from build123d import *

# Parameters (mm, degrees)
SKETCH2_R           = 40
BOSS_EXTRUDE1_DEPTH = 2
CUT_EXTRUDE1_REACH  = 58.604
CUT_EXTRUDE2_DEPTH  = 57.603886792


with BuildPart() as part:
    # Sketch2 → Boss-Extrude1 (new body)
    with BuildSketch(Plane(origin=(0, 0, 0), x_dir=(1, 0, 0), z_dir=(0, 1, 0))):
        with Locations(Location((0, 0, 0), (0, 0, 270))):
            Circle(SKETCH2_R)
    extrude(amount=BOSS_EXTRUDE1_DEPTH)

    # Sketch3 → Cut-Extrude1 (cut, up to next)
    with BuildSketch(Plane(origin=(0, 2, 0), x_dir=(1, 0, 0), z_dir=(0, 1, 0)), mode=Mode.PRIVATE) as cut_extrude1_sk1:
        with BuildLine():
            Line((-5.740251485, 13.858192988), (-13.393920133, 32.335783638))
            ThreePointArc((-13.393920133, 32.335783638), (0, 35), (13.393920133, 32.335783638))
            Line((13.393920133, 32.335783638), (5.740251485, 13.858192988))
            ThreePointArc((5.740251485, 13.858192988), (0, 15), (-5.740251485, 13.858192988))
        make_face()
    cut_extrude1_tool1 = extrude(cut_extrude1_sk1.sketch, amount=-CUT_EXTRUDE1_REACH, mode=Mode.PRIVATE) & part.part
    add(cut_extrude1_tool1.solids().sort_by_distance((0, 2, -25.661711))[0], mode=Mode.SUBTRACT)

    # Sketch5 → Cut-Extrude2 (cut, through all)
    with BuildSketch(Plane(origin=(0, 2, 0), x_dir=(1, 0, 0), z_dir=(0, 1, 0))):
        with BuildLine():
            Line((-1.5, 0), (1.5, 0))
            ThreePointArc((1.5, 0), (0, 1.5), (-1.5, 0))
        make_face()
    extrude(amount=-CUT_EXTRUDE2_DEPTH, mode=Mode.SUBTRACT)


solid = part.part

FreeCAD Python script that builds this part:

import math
import FreeCAD as App
import Part
import Sketcher
from FreeCAD import Vector
Q = App.Units.Quantity

doc = App.newDocument("Part")
body = doc.addObject("PartDesign::Body", "Body")

# Sketch on XZ plane
sketch1 = body.newObject("Sketcher::SketchObject", "Sketch")
sketch1.AttachmentSupport = (doc.getObject("XZ_Plane"), [""])
sketch1.MapMode = "FlatFace"
sketch1.addGeometry(Part.Circle(Vector(0, 0, 0), Vector(0, 0, 1), 40), False)
sketch1.addConstraint([
    Sketcher.Constraint("Coincident", 0, 3, -1, 1),
    Sketcher.Constraint("Diameter", 0, 80.0),
])
pad1 = body.newObject("PartDesign::Pad", "Pad")
pad1.Profile = sketch1
pad1.Length = 2
pad1.Reversed = True

# Sketch on XZ plane
sketch2 = body.newObject("Sketcher::SketchObject", "Sketch001")
sketch2.AttachmentSupport = (doc.getObject("XZ_Plane"), [""])
sketch2.MapMode = "FlatFace"
sketch2.AttachmentOffset = App.Placement(Vector(0, 0, -2), App.Rotation())
sketch2.addGeometry([
    Part.LineSegment(Vector(-13, -32, 0), Vector(-6, -14, 0)),
    Part.ArcOfCircle(Part.Circle(Vector(0, 0, 0), Vector(0, 0, 1), 15), math.radians(-112), math.radians(-68)),
    Part.LineSegment(Vector(6, -14, 0), Vector(13, -32, 0)),
    Part.ArcOfCircle(Part.Circle(Vector(0, 0, 0), Vector(0, 0, 1), 35), math.radians(-112), math.radians(-68)),
], False)
sketch2.addConstraint([
    Sketcher.Constraint("Coincident", 0, 2, 1, 1),
    Sketcher.Constraint("Coincident", 1, 2, 2, 1),
    Sketcher.Constraint("Coincident", 2, 2, 3, 2),
    Sketcher.Constraint("Coincident", 3, 1, 0, 1),
    Sketcher.Constraint("Coincident", 1, 3, -1, 1),
    Sketcher.Constraint("Coincident", 3, 3, -1, 1),
    Sketcher.Constraint("Horizontal", 0, 2, 1, 2),
    Sketcher.Constraint("Horizontal", 2, 2, 3, 1),
    Sketcher.Constraint("Radius", 1, 15.0),
    Sketcher.Constraint("Radius", 3, 35.0),
    Sketcher.Constraint("Angle", 0, Q("67.5 deg")),
    Sketcher.Constraint("DistanceX", 0, 2, -1, 1, 5.740251),
])
pocket1 = body.newObject("PartDesign::Pocket", "Pocket")
pocket1.Profile = sketch2
pocket1.Type = "UpToFirst"
pocket1.Reversed = True

# Sketch on XZ plane
sketch3 = body.newObject("Sketcher::SketchObject", "Sketch002")
sketch3.AttachmentSupport = (doc.getObject("XZ_Plane"), [""])
sketch3.MapMode = "FlatFace"
sketch3.AttachmentOffset = App.Placement(Vector(0, 0, -2), App.Rotation())
sketch3.addGeometry([
    Part.LineSegment(Vector(-1.5, 0, 0), Vector(1.5, 0, 0)),
    Part.ArcOfCircle(Part.Circle(Vector(0, 0, 0), Vector(0, 0, 1), 1.5), math.radians(180), math.radians(360)),
], False)
sketch3.addConstraint([
    Sketcher.Constraint("Coincident", 0, 1, 1, 1),
    Sketcher.Constraint("Coincident", 1, 2, 0, 2),
    Sketcher.Constraint("Horizontal", 0),
    Sketcher.Constraint("Coincident", 1, 3, -1, 1),
    Sketcher.Constraint("PointOnObject", 0, 1, -1),
    Sketcher.Constraint("Radius", 1, 1.5),
])
pocket2 = body.newObject("PartDesign::Pocket", "Pocket001")
pocket2.Profile = sketch3
pocket2.Type = "ThroughAll"
pocket2.Reversed = True

doc.recompute()
